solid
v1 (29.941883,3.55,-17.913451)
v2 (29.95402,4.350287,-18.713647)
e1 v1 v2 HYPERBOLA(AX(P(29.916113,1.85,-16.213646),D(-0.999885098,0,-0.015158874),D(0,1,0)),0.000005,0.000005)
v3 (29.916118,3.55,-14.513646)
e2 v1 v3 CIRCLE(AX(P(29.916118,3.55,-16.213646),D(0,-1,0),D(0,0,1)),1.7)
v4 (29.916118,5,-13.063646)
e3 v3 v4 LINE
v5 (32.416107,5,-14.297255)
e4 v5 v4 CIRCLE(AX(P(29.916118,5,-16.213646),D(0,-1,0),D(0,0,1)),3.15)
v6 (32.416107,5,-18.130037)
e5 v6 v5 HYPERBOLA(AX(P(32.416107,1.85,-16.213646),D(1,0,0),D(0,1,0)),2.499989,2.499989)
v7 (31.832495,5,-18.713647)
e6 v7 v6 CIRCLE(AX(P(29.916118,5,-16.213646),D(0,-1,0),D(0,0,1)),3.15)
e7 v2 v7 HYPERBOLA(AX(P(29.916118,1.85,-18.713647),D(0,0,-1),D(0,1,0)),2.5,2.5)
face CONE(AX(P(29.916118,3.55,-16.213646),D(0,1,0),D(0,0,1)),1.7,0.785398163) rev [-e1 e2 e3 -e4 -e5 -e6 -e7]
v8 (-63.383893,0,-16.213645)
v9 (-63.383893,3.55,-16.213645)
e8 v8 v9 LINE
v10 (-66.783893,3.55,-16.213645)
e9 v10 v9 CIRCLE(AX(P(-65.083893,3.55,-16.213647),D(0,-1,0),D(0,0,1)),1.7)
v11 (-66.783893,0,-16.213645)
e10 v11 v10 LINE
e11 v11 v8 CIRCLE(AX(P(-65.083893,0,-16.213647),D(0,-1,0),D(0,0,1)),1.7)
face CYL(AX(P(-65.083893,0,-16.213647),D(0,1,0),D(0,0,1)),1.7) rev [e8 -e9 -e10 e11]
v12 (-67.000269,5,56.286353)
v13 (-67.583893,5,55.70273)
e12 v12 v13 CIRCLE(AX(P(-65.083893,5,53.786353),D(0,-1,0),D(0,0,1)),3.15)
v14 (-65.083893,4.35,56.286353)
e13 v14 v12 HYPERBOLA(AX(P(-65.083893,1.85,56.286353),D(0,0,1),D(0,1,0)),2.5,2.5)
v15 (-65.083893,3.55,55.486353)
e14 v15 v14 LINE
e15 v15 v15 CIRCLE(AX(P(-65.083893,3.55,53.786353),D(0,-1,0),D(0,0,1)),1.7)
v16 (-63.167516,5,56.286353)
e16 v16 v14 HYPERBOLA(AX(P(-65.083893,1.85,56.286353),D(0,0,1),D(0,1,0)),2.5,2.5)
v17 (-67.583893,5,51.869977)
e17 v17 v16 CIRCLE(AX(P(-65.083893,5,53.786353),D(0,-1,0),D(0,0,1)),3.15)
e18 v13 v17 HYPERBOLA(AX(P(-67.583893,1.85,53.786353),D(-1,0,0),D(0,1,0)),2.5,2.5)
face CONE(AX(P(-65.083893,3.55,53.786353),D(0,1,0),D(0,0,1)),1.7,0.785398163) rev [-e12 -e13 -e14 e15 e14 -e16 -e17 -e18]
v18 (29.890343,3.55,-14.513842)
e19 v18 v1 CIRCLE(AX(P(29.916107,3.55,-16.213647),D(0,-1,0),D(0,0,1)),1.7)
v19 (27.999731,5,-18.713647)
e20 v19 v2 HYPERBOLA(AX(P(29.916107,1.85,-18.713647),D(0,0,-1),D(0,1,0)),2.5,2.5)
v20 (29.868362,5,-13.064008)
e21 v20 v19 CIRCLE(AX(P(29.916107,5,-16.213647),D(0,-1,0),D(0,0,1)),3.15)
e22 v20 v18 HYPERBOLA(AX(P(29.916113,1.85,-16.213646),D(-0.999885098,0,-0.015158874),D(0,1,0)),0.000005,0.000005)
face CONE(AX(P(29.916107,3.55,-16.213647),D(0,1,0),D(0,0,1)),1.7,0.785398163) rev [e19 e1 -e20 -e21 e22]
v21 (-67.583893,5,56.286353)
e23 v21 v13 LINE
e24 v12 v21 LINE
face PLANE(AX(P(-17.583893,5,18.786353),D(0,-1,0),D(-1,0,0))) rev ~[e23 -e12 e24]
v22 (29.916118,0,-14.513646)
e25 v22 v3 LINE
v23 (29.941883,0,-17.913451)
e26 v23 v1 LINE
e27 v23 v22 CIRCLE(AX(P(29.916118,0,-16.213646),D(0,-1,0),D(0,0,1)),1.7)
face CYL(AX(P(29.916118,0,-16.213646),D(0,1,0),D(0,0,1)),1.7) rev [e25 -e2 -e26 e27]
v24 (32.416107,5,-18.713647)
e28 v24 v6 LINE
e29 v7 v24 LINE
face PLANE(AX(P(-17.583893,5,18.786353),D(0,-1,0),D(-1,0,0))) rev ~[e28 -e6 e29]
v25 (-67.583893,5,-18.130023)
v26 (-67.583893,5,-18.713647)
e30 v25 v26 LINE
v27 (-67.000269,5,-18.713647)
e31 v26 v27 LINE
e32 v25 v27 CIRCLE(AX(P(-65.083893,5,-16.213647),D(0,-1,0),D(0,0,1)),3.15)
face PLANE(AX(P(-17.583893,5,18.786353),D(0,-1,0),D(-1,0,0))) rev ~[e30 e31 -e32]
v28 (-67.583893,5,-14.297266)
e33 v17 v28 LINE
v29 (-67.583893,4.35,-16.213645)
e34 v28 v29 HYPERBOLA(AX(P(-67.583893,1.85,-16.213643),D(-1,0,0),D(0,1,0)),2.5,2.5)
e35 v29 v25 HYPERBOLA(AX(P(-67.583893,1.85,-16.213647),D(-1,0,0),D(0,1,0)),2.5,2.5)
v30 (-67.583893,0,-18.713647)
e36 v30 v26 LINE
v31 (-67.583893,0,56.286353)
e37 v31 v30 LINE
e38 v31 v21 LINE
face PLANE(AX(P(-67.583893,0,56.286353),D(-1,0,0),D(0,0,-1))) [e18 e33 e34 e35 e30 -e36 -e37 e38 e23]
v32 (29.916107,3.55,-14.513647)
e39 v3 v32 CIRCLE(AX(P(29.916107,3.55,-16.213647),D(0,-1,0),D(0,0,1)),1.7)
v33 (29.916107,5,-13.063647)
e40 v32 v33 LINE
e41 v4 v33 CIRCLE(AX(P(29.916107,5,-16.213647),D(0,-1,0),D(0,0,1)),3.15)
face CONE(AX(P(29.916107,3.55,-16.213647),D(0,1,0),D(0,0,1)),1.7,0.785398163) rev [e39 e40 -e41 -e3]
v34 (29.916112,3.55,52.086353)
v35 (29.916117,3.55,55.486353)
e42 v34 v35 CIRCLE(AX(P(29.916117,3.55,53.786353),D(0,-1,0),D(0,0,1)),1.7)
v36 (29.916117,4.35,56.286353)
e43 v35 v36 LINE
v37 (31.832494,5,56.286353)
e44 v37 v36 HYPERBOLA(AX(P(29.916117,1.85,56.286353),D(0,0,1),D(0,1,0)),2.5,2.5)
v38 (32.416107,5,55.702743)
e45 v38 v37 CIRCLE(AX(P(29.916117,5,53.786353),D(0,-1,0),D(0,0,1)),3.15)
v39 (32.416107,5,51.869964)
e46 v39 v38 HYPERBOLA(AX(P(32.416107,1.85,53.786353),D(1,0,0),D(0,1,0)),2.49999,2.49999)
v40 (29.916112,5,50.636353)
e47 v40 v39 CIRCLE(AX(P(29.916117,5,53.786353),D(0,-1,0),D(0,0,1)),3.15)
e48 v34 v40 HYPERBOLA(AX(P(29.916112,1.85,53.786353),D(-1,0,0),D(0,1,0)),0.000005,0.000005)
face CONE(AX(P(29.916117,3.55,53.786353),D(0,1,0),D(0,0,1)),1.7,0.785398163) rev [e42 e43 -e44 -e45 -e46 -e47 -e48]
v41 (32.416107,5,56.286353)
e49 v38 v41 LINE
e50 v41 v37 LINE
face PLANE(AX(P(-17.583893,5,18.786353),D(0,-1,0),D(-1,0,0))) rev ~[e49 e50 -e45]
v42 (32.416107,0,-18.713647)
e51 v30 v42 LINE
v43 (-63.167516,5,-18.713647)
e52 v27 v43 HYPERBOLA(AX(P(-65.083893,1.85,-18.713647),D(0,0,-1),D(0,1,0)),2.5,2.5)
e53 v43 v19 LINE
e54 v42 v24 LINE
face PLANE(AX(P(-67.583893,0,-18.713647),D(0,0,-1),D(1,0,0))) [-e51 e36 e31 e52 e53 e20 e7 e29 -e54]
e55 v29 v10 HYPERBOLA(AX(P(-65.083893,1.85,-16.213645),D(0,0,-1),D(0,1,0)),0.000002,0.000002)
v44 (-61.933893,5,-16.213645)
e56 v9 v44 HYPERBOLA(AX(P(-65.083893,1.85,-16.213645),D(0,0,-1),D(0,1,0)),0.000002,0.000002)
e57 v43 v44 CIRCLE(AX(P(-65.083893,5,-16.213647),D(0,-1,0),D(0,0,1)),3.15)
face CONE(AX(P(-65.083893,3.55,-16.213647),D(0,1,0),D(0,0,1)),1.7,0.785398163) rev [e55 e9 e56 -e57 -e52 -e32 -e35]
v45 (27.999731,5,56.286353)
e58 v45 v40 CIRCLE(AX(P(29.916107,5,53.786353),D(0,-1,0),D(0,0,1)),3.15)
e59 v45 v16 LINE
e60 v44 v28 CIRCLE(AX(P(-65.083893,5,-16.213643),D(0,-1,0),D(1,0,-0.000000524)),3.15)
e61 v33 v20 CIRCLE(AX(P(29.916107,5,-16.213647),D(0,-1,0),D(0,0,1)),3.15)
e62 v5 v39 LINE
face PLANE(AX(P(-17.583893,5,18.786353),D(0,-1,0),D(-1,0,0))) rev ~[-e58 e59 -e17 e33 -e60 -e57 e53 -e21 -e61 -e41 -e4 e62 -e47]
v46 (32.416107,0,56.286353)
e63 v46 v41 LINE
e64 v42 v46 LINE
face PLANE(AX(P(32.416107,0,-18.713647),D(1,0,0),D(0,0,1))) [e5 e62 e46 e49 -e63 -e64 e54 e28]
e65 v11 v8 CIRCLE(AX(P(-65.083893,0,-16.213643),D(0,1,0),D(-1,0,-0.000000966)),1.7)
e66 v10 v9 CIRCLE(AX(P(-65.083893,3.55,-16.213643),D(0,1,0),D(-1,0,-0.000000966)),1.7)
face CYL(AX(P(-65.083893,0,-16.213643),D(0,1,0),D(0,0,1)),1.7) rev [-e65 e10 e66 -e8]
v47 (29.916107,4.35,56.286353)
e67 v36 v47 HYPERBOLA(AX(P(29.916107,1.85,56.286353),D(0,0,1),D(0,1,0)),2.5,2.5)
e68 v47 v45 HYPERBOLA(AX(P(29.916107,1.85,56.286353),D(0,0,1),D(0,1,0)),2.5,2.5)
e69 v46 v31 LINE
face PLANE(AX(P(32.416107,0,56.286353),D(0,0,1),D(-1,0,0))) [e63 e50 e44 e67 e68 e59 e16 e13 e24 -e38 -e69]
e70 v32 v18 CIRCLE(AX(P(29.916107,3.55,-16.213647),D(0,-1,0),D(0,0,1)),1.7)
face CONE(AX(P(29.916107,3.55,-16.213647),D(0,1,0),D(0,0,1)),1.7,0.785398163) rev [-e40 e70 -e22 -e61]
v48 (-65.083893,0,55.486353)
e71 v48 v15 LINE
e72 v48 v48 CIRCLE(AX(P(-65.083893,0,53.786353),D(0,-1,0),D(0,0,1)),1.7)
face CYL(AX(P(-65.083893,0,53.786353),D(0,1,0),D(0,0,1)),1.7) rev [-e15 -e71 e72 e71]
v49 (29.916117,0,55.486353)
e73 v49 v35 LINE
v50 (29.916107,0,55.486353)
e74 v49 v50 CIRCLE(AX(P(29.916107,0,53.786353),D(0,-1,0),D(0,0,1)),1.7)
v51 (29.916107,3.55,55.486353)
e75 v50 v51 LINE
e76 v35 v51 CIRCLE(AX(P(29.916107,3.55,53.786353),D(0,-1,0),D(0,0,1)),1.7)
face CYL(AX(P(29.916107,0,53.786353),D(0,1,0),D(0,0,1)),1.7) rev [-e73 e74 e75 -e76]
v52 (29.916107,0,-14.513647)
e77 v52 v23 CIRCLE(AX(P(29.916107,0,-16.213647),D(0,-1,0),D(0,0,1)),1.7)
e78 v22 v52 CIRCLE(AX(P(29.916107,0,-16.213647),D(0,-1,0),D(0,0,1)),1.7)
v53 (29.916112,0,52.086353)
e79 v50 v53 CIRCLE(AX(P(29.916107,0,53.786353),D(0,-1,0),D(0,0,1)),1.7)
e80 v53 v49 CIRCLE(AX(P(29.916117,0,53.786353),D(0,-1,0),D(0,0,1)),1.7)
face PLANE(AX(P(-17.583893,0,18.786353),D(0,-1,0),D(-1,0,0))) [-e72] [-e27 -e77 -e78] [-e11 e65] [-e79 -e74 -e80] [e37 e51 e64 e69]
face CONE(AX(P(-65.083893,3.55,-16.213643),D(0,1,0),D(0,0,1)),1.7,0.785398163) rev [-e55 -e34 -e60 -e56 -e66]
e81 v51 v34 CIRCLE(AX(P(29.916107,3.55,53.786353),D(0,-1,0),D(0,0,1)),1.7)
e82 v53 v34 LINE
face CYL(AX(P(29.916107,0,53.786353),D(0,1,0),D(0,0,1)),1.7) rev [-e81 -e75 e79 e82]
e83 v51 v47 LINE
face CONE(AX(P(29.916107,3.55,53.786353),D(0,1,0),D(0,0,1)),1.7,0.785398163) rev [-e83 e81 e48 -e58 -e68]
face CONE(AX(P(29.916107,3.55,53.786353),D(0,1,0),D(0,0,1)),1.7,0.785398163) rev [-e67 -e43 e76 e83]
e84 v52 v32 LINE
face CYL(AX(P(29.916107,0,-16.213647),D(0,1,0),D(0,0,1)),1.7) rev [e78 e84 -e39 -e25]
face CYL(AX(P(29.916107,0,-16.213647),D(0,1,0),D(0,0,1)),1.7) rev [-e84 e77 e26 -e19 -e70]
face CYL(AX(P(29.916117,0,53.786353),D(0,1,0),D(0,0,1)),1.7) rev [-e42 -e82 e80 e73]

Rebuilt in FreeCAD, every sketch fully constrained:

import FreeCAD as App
import Part
import Sketcher

V = App.Vector
Q = App.Units.Quantity


def add_polygon(sketch, points):
    """Adds a closed chain of lines whose ends are joined by coincident constraints."""
    first, n = sketch.GeometryCount, len(points)
    for a, b in zip(points, points[1:] + points[:1]):
        sketch.addGeometry(Part.LineSegment(App.Vector(*a, 0), App.Vector(*b, 0)), False)
    for i in range(n):
        sketch.addConstraint(Sketcher.Constraint("Coincident", first + i, 2, first + (i + 1) % n, 1))

doc = App.newDocument("Part")
params = doc.addObject("Spreadsheet::Sheet", "Params")
for row, (alias, value) in enumerate([
    ("sketch1_width", "100 mm"),
    ("sketch1_height", "75 mm"),
    ("pad1_length", "5 mm"),
    ("sketch2_width", "5 mm"),
    ("sketch2_height", "1.7 mm"),
    ("sketch2_width2", "3.55 mm"),
    ("groove_angle", "360 deg"),
    ("linearpattern_pitch", "70 mm"),
    ("linearpattern2_pitch", "118.004237 mm"),
    ("linearpattern3_pitch", "95 mm"),
    ("linearpattern4_pitch", "69.999997 mm"),
    ("linearpattern5_pitch", "118.004246 mm"),
    ("linearpattern6_pitch", "95.00001 mm"),
], start=1):
    params.set(f"A{row}", alias)
    params.set(f"B{row}", "=" + value)
    params.setAlias(f"B{row}", alias)

body = doc.addObject("PartDesign::Body", "Body")

# Sketch on XZ plane
sketch1 = doc.addObject("Sketcher::SketchObject", "Sketch")
body.addObject(sketch1)
sketch1.AttachmentSupport = (doc.XZ_Plane, [""])
sketch1.MapMode = "FlatFace"
add_polygon(sketch1, [(32, -19), (-68, -19), (-68, 56), (32, 56)])  # lines 0-3
sketch1.addConstraint([
    Sketcher.Constraint("Horizontal", 0),
    Sketcher.Constraint("Vertical", 1),
    Sketcher.Constraint("Horizontal", 2),
    Sketcher.Constraint("Vertical", 3),
    Sketcher.Constraint("DistanceX", 0, 2, 0, 1, 100.0),
    Sketcher.Constraint("DistanceY", 1, 1, 1, 2, 75.0),
    Sketcher.Constraint("DistanceX", 0, 2, -1, 1, 67.583893),
    Sketcher.Constraint("DistanceY", 0, 2, -1, 1, 18.713647),
])
sketch1.setExpression("Constraints[8]", "Params.sketch1_width")
sketch1.setExpression("Constraints[9]", "Params.sketch1_height")
pad1 = doc.addObject("PartDesign::Pad", "Pad")
body.addObject(pad1)
pad1.Profile = sketch1
pad1.setExpression("Length", "Params.pad1_length")
pad1.Reversed = True

# Sketch on YZ plane
sketch2 = doc.addObject("Sketcher::SketchObject", "Sketch001")
body.addObject(sketch2)
sketch2.AttachmentSupport = (doc.YZ_Plane, [""])
sketch2.MapMode = "FlatFace"
sketch2.AttachmentOffset = App.Placement(V(0, 0, -65.083893), App.Rotation())
add_polygon(sketch2, [(0, 53.8), (5, 53.8), (5, 56.9), (3.5, 55.5), (0, 55.5)])  # lines 0-4
sketch2.addGeometry(Part.LineSegment(V(5, 53.8, 0), V(0, 53.8, 0)), True)  # axis
sketch2.addConstraint([
    Sketcher.Constraint("Horizontal", 0),
    Sketcher.Constraint("Vertical", 1),
    Sketcher.Constraint("Horizontal", 3),
    Sketcher.Constraint("Vertical", 4),
    Sketcher.Constraint("Horizontal", 5),
    Sketcher.Constraint("Coincident", 5, 1, 0, 2),
    Sketcher.Constraint("PointOnObject", 3, 2, -2),
    Sketcher.Constraint("PointOnObject", 5, 2, -2),
    Sketcher.Constraint("DistanceX", 0, 1, 0, 2, 5.0),
    Sketcher.Constraint("Angle", 2, Q("-135 deg")),
    Sketcher.Constraint("DistanceY", 4, 2, 4, 1, 1.7),
    Sketcher.Constraint("DistanceX", 3, 2, 3, 1, 3.55),
    Sketcher.Constraint("DistanceY", -1, 1, 0, 2, 53.786353),
])
sketch2.setExpression("Constraints[13]", "Params.sketch2_width")
sketch2.setExpression("Constraints[15]", "Params.sketch2_height")
sketch2.setExpression("Constraints[16]", "Params.sketch2_width2")
groove = doc.addObject("PartDesign::Groove", "Groove")
body.addObject(groove)
groove.Profile = sketch2
groove.ReferenceAxis = (sketch2, ["Axis0"])
groove.setExpression("Angle", "Params.groove_angle")
doc.recompute()

linearpattern = doc.addObject("PartDesign::LinearPattern", "LinearPattern")
body.addObject(linearpattern)
linearpattern.Originals = [groove]
linearpattern.Direction = (doc.Z_Axis, [""])
linearpattern.Mode = "offset"
linearpattern.setExpression("Offset", "Params.linearpattern_pitch")
linearpattern.Occurrences = 2
linearpattern.Reversed = True
body.Tip = linearpattern
doc.recompute()

datumline = doc.addObject("PartDesign::Line", "DatumLine")
body.addObject(datumline)
datumline.Placement = App.Placement(V(0, 0, 0), App.Rotation(V(0, 0, 1), V(0.805055837, 0, -0.593199038)))
linearpattern2 = doc.addObject("PartDesign::LinearPattern", "LinearPattern001")
body.addObject(linearpattern2)
linearpattern2.Originals = [groove]
linearpattern2.Direction = (datumline, [""])
linearpattern2.Mode = "offset"
linearpattern2.setExpression("Offset", "Params.linearpattern2_pitch")
linearpattern2.Occurrences = 2
body.Tip = linearpattern2
doc.recompute()

linearpattern3 = doc.addObject("PartDesign::LinearPattern", "LinearPattern002")
body.addObject(linearpattern3)
linearpattern3.Originals = [groove]
linearpattern3.Direction = (doc.X_Axis, [""])
linearpattern3.Mode = "offset"
linearpattern3.setExpression("Offset", "Params.linearpattern3_pitch")
linearpattern3.Occurrences = 2
body.Tip = linearpattern3
doc.recompute()

linearpattern4 = doc.addObject("PartDesign::LinearPattern", "LinearPattern003")
body.addObject(linearpattern4)
linearpattern4.Originals = [groove]
linearpattern4.Direction = (doc.Z_Axis, [""])
linearpattern4.Mode = "offset"
linearpattern4.setExpression("Offset", "Params.linearpattern4_pitch")
linearpattern4.Occurrences = 2
linearpattern4.Reversed = True
body.Tip = linearpattern4
doc.recompute()

datumline2 = doc.addObject("PartDesign::Line", "DatumLine001")
body.addObject(datumline2)
datumline2.Placement = App.Placement(V(0, 0, 0), App.Rotation(V(0, 0, 1), V(0.805055871, 0, -0.593198993)))
linearpattern5 = doc.addObject("PartDesign::LinearPattern", "LinearPattern004")
body.addObject(linearpattern5)
linearpattern5.Originals = [groove]
linearpattern5.Direction = (datumline2, [""])
linearpattern5.Mode = "offset"
linearpattern5.setExpression("Offset", "Params.linearpattern5_pitch")
linearpattern5.Occurrences = 2
body.Tip = linearpattern5
doc.recompute()

linearpattern6 = doc.addObject("PartDesign::LinearPattern", "LinearPattern005")
body.addObject(linearpattern6)
linearpattern6.Originals = [groove]
linearpattern6.Direction = (doc.X_Axis, [""])
linearpattern6.Mode = "offset"
linearpattern6.setExpression("Offset", "Params.linearpattern6_pitch")
linearpattern6.Occurrences = 2
body.Tip = linearpattern6

doc.recompute()
